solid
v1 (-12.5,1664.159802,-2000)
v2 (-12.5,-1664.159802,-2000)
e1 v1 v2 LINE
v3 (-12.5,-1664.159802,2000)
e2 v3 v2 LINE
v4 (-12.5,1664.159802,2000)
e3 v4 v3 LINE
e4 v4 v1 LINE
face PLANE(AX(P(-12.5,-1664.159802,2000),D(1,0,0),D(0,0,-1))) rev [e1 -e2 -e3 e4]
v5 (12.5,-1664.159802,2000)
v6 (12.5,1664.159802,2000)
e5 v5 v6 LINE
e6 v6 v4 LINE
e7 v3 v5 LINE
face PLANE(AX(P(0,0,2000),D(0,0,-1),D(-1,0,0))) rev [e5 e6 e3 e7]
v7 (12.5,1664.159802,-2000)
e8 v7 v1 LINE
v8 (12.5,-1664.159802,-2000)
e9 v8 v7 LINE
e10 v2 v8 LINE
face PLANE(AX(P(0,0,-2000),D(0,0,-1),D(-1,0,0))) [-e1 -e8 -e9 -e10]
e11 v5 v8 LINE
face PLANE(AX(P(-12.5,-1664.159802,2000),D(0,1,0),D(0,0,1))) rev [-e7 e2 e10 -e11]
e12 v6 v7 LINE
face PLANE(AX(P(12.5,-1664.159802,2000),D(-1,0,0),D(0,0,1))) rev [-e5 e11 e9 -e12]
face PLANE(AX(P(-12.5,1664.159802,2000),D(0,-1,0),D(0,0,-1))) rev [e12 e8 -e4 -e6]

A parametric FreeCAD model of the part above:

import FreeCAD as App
import Part
import Sketcher

V = App.Vector


def add_polygon(sketch, points):
    """Adds a closed chain of lines whose ends are joined by coincident constraints."""
    first, n = sketch.GeometryCount, len(points)
    for a, b in zip(points, points[1:] + points[:1]):
        sketch.addGeometry(Part.LineSegment(App.Vector(*a, 0), App.Vector(*b, 0)), False)
    for i in range(n):
        sketch.addConstraint(Sketcher.Constraint("Coincident", first + i, 2, first + (i + 1) % n, 1))

doc = App.newDocument("Part")
body = doc.addObject("PartDesign::Body", "Body")

sketch1 = body.newObject("Sketcher::SketchObject", "Sketch")
sketch1.AttachmentSupport = (doc.getObject("XY_Plane"), [""])
sketch1.MapMode = "FlatFace"
sketch1.AttachmentOffset = App.Placement(V(0, 0, -2000), App.Rotation())
add_polygon(sketch1, [(-12, 1664), (-12, -1664), (12, -1664), (12, 1664)])
sketch1.addConstraint([
    Sketcher.Constraint("Vertical", 0),
    Sketcher.Constraint("Horizontal", 1),
    Sketcher.Constraint("Vertical", 2),
    Sketcher.Constraint("Horizontal", 3),
    Sketcher.Constraint("Symmetric", 0, 2, 2, 2, -1, 1),
    Sketcher.Constraint("DistanceX", 1, 1, 1, 2, 25.0),
    Sketcher.Constraint("DistanceY", 0, 2, -1, 1, 1664.159802),
])
pad1 = body.newObject("PartDesign::Pad", "Pad")
pad1.Profile = sketch1
pad1.Length = 4000

doc.recompute()
